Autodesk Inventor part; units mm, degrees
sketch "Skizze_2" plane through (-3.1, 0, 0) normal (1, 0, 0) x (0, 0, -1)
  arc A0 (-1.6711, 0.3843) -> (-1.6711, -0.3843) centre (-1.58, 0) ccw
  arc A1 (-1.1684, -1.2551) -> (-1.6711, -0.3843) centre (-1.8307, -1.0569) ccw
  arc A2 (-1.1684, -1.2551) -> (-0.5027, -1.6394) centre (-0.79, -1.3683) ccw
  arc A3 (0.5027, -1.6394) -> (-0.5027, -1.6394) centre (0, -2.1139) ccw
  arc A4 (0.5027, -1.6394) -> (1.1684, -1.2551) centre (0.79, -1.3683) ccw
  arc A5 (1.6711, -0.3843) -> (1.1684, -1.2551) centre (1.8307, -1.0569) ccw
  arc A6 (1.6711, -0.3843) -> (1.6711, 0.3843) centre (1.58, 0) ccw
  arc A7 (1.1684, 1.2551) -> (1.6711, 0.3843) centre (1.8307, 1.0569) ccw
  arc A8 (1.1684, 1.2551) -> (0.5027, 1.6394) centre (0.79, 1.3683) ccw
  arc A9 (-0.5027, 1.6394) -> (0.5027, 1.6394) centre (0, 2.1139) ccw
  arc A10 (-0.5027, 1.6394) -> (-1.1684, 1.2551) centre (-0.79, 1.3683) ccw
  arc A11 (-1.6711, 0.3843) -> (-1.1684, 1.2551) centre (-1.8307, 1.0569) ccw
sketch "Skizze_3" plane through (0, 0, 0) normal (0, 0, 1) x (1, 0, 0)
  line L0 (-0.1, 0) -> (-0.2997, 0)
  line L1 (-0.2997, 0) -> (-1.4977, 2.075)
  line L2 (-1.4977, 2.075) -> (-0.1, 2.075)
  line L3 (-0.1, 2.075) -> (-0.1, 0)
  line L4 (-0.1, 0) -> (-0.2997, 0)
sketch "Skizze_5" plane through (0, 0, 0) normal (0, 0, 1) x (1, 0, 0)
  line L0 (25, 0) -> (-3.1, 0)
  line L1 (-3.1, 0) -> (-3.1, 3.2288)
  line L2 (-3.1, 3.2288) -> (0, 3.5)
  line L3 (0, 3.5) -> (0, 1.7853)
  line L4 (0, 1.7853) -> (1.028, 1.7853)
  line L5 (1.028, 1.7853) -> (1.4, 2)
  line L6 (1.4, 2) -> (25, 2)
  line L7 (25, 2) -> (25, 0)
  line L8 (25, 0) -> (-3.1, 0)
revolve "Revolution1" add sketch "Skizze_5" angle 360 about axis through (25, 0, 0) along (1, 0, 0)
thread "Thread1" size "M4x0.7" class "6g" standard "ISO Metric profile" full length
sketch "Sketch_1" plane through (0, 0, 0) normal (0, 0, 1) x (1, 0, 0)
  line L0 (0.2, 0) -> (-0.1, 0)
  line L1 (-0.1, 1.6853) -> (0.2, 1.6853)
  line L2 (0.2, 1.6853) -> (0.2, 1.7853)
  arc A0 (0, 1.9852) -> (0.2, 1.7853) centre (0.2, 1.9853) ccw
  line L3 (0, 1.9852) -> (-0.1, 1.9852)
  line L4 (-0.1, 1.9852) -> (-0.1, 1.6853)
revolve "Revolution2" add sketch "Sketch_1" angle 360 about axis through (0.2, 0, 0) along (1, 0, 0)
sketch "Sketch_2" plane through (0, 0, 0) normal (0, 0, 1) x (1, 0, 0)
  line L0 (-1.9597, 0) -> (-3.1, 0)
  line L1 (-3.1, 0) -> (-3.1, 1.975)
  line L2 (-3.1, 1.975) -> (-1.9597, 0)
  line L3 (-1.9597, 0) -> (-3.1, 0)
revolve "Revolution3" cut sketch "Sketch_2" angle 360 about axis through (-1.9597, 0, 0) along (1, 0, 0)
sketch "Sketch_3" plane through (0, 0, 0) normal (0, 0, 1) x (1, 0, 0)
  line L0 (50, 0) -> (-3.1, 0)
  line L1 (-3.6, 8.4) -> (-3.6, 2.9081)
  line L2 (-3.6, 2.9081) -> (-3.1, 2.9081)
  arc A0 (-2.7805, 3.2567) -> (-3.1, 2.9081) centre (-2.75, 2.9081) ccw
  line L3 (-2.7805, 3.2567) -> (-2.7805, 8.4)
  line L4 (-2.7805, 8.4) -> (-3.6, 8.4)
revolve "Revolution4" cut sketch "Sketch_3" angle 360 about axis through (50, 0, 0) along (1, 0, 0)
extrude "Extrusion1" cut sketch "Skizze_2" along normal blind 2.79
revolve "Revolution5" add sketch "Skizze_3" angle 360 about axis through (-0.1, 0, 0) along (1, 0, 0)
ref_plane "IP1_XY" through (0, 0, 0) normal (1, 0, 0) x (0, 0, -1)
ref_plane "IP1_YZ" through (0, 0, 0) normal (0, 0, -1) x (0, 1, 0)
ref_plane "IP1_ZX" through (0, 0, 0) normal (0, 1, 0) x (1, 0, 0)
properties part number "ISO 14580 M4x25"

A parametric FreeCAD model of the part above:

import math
import FreeCAD as App
import Part
import Sketcher
Q = App.Units.Quantity

doc = App.newDocument("Part")
body = doc.addObject("PartDesign::Body", "Body")

sketch1 = doc.addObject("Sketcher::SketchObject", "Sketch")
body.addObject(sketch1)
sketch1.AttachmentSupport = (doc.XY_Plane, [""])
sketch1.MapMode = "FlatFace"
sketch1.addGeometry([
    Part.LineSegment(App.Vector(-3.1, 0, 0), App.Vector(25, 0, 0)),
    Part.LineSegment(App.Vector(25, 0, 0), App.Vector(25, 2, 0)),
    Part.LineSegment(App.Vector(25, 2, 0), App.Vector(1.4, 2, 0)),
    Part.LineSegment(App.Vector(1.4, 2, 0), App.Vector(1.028, 1.7853, 0)),
    Part.LineSegment(App.Vector(1.028, 1.7853, 0), App.Vector(0, 1.7853, 0)),
    Part.LineSegment(App.Vector(0, 1.7853, 0), App.Vector(0, 3.5, 0)),
    Part.LineSegment(App.Vector(0, 3.5, 0), App.Vector(-3.1, 3.2288, 0)),
    Part.LineSegment(App.Vector(-3.1, 3.2288, 0), App.Vector(-3.1, 0, 0)),
], False)
sketch1.addConstraint([
    Sketcher.Constraint("Coincident", 0, 2, 1, 1),
    Sketcher.Constraint("Coincident", 1, 2, 2, 1),
    Sketcher.Constraint("Coincident", 2, 2, 3, 1),
    Sketcher.Constraint("Coincident", 3, 2, 4, 1),
    Sketcher.Constraint("Coincident", 4, 2, 5, 1),
    Sketcher.Constraint("Coincident", 5, 2, 6, 1),
    Sketcher.Constraint("Coincident", 6, 2, 7, 1),
    Sketcher.Constraint("Coincident", 7, 2, 0, 1),
    Sketcher.Constraint("Horizontal", 0),
    Sketcher.Constraint("Vertical", 1),
    Sketcher.Constraint("Horizontal", 2),
    Sketcher.Constraint("Horizontal", 4),
    Sketcher.Constraint("Vertical", 5),
    Sketcher.Constraint("Vertical", 7),
    Sketcher.Constraint("PointOnObject", 0, 2, -1),
    Sketcher.Constraint("PointOnObject", 4, 2, -2),
    Sketcher.Constraint("DistanceY", 1, 1, 1, 2, Q("2 mm")),
    Sketcher.Constraint("Angle", 6, Q("-175.0003 deg")),
    Sketcher.Constraint("DistanceX", 0, 1, 0, 2, Q("28.1 mm")),
    Sketcher.Constraint("DistanceX", 2, 2, 2, 1, Q("23.6 mm")),
    Sketcher.Constraint("DistanceX", -1, 1, 0, 2, Q("25 mm")),
    Sketcher.Constraint("DistanceY", -1, 1, 5, 2, Q("3.5 mm")),
    Sketcher.Constraint("DistanceX", 4, 2, 4, 1, Q("1.028 mm")),
    Sketcher.Constraint("DistanceY", 5, 1, 5, 2, Q("1.7147 mm")),
])
revolution = doc.addObject("PartDesign::Revolution", "Revolution")
body.addObject(revolution)
revolution.Profile = sketch1
revolution.ReferenceAxis = (sketch1, ["H_Axis"])
revolution.Angle = 360

sketch2 = doc.addObject("Sketcher::SketchObject", "Sketch001")
body.addObject(sketch2)
sketch2.AttachmentSupport = (doc.XY_Plane, [""])
sketch2.MapMode = "FlatFace"
sketch2.addGeometry([
    Part.LineSegment(App.Vector(-0.1, 1.9852, 0), App.Vector(-0.1, 1.6853, 0)),
    Part.LineSegment(App.Vector(-0.1, 1.6853, 0), App.Vector(0.2, 1.6853, 0)),
    Part.LineSegment(App.Vector(0.2, 1.6853, 0), App.Vector(0.2, 1.7853, 0)),
    Part.ArcOfCircle(Part.Circle(App.Vector(0.2, 1.9853, 0), App.Vector(0, 0, 1), 0.2), math.radians(-179.971352), math.radians(-90)),
    Part.LineSegment(App.Vector(0, 1.9852, 0), App.Vector(-0.1, 1.9852, 0)),
], False)
sketch2.addConstraint([
    Sketcher.Constraint("Coincident", 0, 2, 1, 1),
    Sketcher.Constraint("Coincident", 1, 2, 2, 1),
    Sketcher.Constraint("Coincident", 2, 2, 3, 2),
    Sketcher.Constraint("Coincident", 3, 1, 4, 1),
    Sketcher.Constraint("Coincident", 4, 2, 0, 1),
    Sketcher.Constraint("Vertical", 0),
    Sketcher.Constraint("Horizontal", 1),
    Sketcher.Constraint("Vertical", 2),
    Sketcher.Constraint("Horizontal", 4),
    Sketcher.Constraint("PointOnObject", 3, 1, -2),
    Sketcher.Constraint("Vertical", 3, 3, 1, 2),
    Sketcher.Constraint("Equal", 1, 0),
    Sketcher.Constraint("Equal", 4, 2),
    Sketcher.Constraint("Radius", 3, Q("0.2 mm")),
    Sketcher.Constraint("DistanceX", 1, 1, 1, 2, Q("0.3 mm")),
    Sketcher.Constraint("DistanceY", -1, 1, 3, 3, Q("1.9853 mm")),
])
revolution2 = doc.addObject("PartDesign::Revolution", "Revolution001")
body.addObject(revolution2)
revolution2.Profile = sketch2
revolution2.ReferenceAxis = (sketch2, ["H_Axis"])
revolution2.Angle = 360

sketch3 = doc.addObject("Sketcher::SketchObject", "Sketch002")
body.addObject(sketch3)
sketch3.AttachmentSupport = (doc.XY_Plane, [""])
sketch3.MapMode = "FlatFace"
sketch3.addGeometry([
    Part.LineSegment(App.Vector(-3.1, 0, 0), App.Vector(-1.9597, 0, 0)),
    Part.LineSegment(App.Vector(-1.9597, 0, 0), App.Vector(-3.1, 1.975, 0)),
    Part.LineSegment(App.Vector(-3.1, 1.975, 0), App.Vector(-3.1, 0, 0)),
], False)
sketch3.addConstraint([
    Sketcher.Constraint("Coincident", 0, 2, 1, 1),
    Sketcher.Constraint("Coincident", 1, 2, 2, 1),
    Sketcher.Constraint("Coincident", 2, 2, 0, 1),
    Sketcher.Constraint("Horizontal", 0),
    Sketcher.Constraint("Vertical", 2),
    Sketcher.Constraint("PointOnObject", 0, 2, -1),
    Sketcher.Constraint("Angle", 1, Q("120.0007 deg")),
    Sketcher.Constraint("DistanceX", 1, 2, -1, 1, Q("3.1 mm")),
    Sketcher.Constraint("DistanceY", 2, 2, 2, 1, Q("1.975 mm")),
])
groove = doc.addObject("PartDesign::Groove", "Groove")
body.addObject(groove)
groove.Profile = sketch3
groove.ReferenceAxis = (sketch3, ["H_Axis"])
groove.Angle = 360

sketch4 = doc.addObject("Sketcher::SketchObject", "Sketch003")
body.addObject(sketch4)
sketch4.AttachmentSupport = (doc.XY_Plane, [""])
sketch4.MapMode = "FlatFace"
sketch4.addGeometry([
    Part.LineSegment(App.Vector(-2.7805, 8.4, 0), App.Vector(-3.6, 8.4, 0)),
    Part.LineSegment(App.Vector(-3.6, 8.4, 0), App.Vector(-3.6, 2.9081, 0)),
    Part.LineSegment(App.Vector(-3.6, 2.9081, 0), App.Vector(-3.1, 2.9081, 0)),
    Part.ArcOfCircle(Part.Circle(App.Vector(-2.75, 2.9081, 0), App.Vector(0, 0, 1), 0.349932), math.radians(95.000237), math.radians(180)),
    Part.LineSegment(App.Vector(-2.7805, 3.2567, 0), App.Vector(-2.7805, 8.4, 0)),
], False)
sketch4.addConstraint([
    Sketcher.Constraint("Coincident", 0, 2, 1, 1),
    Sketcher.Constraint("Coincident", 1, 2, 2, 1),
    Sketcher.Constraint("Coincident", 2, 2, 3, 2),
    Sketcher.Constraint("Coincident", 3, 1, 4, 1),
    Sketcher.Constraint("Coincident", 4, 2, 0, 1),
    Sketcher.Constraint("Horizontal", 0),
    Sketcher.Constraint("Vertical", 1),
    Sketcher.Constraint("Horizontal", 2),
    Sketcher.Constraint("Vertical", 4),
    Sketcher.Constraint("Horizontal", 3, 3, 1, 2),
    Sketcher.Constraint("Radius", 3, Q("0.35 mm")),
    Sketcher.Constraint("DistanceX", 2, 1, 2, 2, Q("0.5 mm")),
    Sketcher.Constraint("DistanceX", 0, 2, -1, 1, Q("3.6 mm")),
    Sketcher.Constraint("DistanceY", -1, 1, 0, 2, Q("8.4 mm")),
    Sketcher.Constraint("DistanceY", 1, 2, 1, 1, Q("5.492 mm")),
    Sketcher.Constraint("DistanceX", 0, 2, 0, 1, Q("0.8195 mm")),
])
groove2 = doc.addObject("PartDesign::Groove", "Groove001")
body.addObject(groove2)
groove2.Profile = sketch4
groove2.ReferenceAxis = (sketch4, ["H_Axis"])
groove2.Angle = 360

sketch5 = doc.addObject("Sketcher::SketchObject", "Sketch004")
body.addObject(sketch5)
sketch5.AttachmentSupport = (doc.YZ_Plane, [""])
sketch5.MapMode = "FlatFace"
sketch5.AttachmentOffset = App.Placement(App.Vector(0, 0, -3.1), App.Rotation())
sketch5.addGeometry([
    Part.ArcOfCircle(Part.Circle(App.Vector(1.0569, 1.8307, 0), App.Vector(0, 0, 1), 0.691276), math.radians(-166.651273), math.radians(-73.339654)),
    Part.ArcOfCircle(Part.Circle(App.Vector(0, 1.58, 0), App.Vector(0, 0, 1), 0.39495), math.radians(13.336047), math.radians(166.663953)),
    Part.ArcOfCircle(Part.Circle(App.Vector(-1.0569, 1.8307, 0), App.Vector(0, 0, 1), 0.691321), math.radians(-106.660346), math.radians(-13.348727)),
    Part.ArcOfCircle(Part.Circle(App.Vector(-1.3683, 0.79, 0), App.Vector(0, 0, 1), 0.394969), math.radians(73.345218), math.radians(226.661768)),
    Part.ArcOfCircle(Part.Circle(App.Vector(-2.1139, 0, 0), App.Vector(0, 0, 1), 0.691272), math.radians(-46.652981), math.radians(46.652981)),
    Part.ArcOfCircle(Part.Circle(App.Vector(-1.3683, -0.79, 0), App.Vector(0, 0, 1), 0.395015), math.radians(133.338232), math.radians(286.654782)),
    Part.ArcOfCircle(Part.Circle(App.Vector(-1.0569, -1.8307, 0), App.Vector(0, 0, 1), 0.691276), math.radians(13.348727), math.radians(106.660346)),
    Part.ArcOfCircle(Part.Circle(App.Vector(0, -1.58, 0), App.Vector(0, 0, 1), 0.39495), math.radians(-166.663953), math.radians(-13.336047)),
    Part.ArcOfCircle(Part.Circle(App.Vector(1.0569, -1.8307, 0), App.Vector(0, 0, 1), 0.691321), math.radians(73.339654), math.radians(166.651273)),
    Part.ArcOfCircle(Part.Circle(App.Vector(1.3683, -0.79, 0), App.Vector(0, 0, 1), 0.394969), math.radians(-106.654782), math.radians(46.661768)),
    Part.ArcOfCircle(Part.Circle(App.Vector(2.1139, 0, 0), App.Vector(0, 0, 1), 0.691272), math.radians(133.347019), math.radians(226.652981)),
    Part.ArcOfCircle(Part.Circle(App.Vector(1.3683, 0.79, 0), App.Vector(0, 0, 1), 0.395015), math.radians(-46.661768), math.radians(106.654782)),
], False)
sketch5.addConstraint([
    Sketcher.Constraint("Tangent", 0, 1, 1, 1),
    Sketcher.Constraint("Tangent", 1, 2, 2, 2),
    Sketcher.Constraint("Tangent", 2, 1, 3, 1),
    Sketcher.Constraint("Tangent", 3, 2, 4, 2),
    Sketcher.Constraint("Tangent", 4, 1, 5, 1),
    Sketcher.Constraint("Tangent", 5, 2, 6, 2),
    Sketcher.Constraint("Tangent", 6, 1, 7, 1),
    Sketcher.Constraint("Tangent", 7, 2, 8, 2),
    Sketcher.Constraint("Tangent", 8, 1, 9, 1),
    Sketcher.Constraint("Tangent", 9, 2, 10, 2),
    Sketcher.Constraint("Tangent", 10, 1, 11, 1),
    Sketcher.Constraint("Tangent", 11, 2, 0, 2),
    Sketcher.Constraint("Equal", 0, 2),
    Sketcher.Constraint("Equal", 1, 3),
    Sketcher.Constraint("Equal", 2, 4),
    Sketcher.Constraint("Equal", 3, 5),
    Sketcher.Constraint("Equal", 4, 6),
    Sketcher.Constraint("Equal", 5, 7),
    Sketcher.Constraint("Equal", 6, 8),
    Sketcher.Constraint("Equal", 7, 9),
    Sketcher.Constraint("Equal", 8, 10),
    Sketcher.Constraint("Equal", 9, 11),
    Sketcher.Constraint("Symmetric", 0, 3, 6, 3, -1, 1),
    Sketcher.Constraint("Symmetric", 2, 3, 8, 3, -1, 1),
    Sketcher.Constraint("Symmetric", 4, 3, 10, 3, -1, 1),
    Sketcher.Constraint("Symmetric", 0, 3, 2, 3, -2),
    Sketcher.Constraint("PointOnObject", 4, 3, -1),
    Sketcher.Constraint("Radius", 1, Q("0.395 mm")),
    Sketcher.Constraint("Radius", 0, Q("0.6913 mm")),
    Sketcher.Constraint("DistanceY", -1, 1, 1, 3, Q("1.58 mm")),
    Sketcher.Constraint("DistanceY", -1, 1, 3, 3, Q("0.79 mm")),
    Sketcher.Constraint("DistanceX", -1, 1, 0, 3, Q("1.057 mm")),
])
pocket1 = doc.addObject("PartDesign::Pocket", "Pocket")
body.addObject(pocket1)
pocket1.Profile = sketch5
pocket1.Length = 2.79
pocket1.Reversed = True

sketch6 = doc.addObject("Sketcher::SketchObject", "Sketch005")
body.addObject(sketch6)
sketch6.AttachmentSupport = (doc.XY_Plane, [""])
sketch6.MapMode = "FlatFace"
sketch6.addGeometry([
    Part.LineSegment(App.Vector(-0.2997, 0, 0), App.Vector(-0.1, 0, 0)),
    Part.LineSegment(App.Vector(-0.1, 0, 0), App.Vector(-0.1, 2.075, 0)),
    Part.LineSegment(App.Vector(-0.1, 2.075, 0), App.Vector(-1.4977, 2.075, 0)),
    Part.LineSegment(App.Vector(-1.4977, 2.075, 0), App.Vector(-0.2997, 0, 0)),
], False)
sketch6.addConstraint([
    Sketcher.Constraint("Coincident", 0, 2, 1, 1),
    Sketcher.Constraint("Coincident", 1, 2, 2, 1),
    Sketcher.Constraint("Coincident", 2, 2, 3, 1),
    Sketcher.Constraint("Coincident", 3, 2, 0, 1),
    Sketcher.Constraint("Horizontal", 0),
    Sketcher.Constraint("Vertical", 1),
    Sketcher.Constraint("Horizontal", 2),
    Sketcher.Constraint("PointOnObject", 0, 2, -1),
    Sketcher.Constraint("Angle", 3, Q("-60 deg")),
    Sketcher.Constraint("DistanceX", 0, 2, -1, 1, Q("0.1 mm")),
    Sketcher.Constraint("DistanceY", 1, 1, 1, 2, Q("2.075 mm")),
    Sketcher.Constraint("DistanceX", 0, 1, 0, 2, Q("0.1997 mm")),
])
revolution3 = doc.addObject("PartDesign::Revolution", "Revolution002")
body.addObject(revolution3)
revolution3.Profile = sketch6
revolution3.ReferenceAxis = (sketch6, ["H_Axis"])
revolution3.Angle = 360

doc.recompute()
